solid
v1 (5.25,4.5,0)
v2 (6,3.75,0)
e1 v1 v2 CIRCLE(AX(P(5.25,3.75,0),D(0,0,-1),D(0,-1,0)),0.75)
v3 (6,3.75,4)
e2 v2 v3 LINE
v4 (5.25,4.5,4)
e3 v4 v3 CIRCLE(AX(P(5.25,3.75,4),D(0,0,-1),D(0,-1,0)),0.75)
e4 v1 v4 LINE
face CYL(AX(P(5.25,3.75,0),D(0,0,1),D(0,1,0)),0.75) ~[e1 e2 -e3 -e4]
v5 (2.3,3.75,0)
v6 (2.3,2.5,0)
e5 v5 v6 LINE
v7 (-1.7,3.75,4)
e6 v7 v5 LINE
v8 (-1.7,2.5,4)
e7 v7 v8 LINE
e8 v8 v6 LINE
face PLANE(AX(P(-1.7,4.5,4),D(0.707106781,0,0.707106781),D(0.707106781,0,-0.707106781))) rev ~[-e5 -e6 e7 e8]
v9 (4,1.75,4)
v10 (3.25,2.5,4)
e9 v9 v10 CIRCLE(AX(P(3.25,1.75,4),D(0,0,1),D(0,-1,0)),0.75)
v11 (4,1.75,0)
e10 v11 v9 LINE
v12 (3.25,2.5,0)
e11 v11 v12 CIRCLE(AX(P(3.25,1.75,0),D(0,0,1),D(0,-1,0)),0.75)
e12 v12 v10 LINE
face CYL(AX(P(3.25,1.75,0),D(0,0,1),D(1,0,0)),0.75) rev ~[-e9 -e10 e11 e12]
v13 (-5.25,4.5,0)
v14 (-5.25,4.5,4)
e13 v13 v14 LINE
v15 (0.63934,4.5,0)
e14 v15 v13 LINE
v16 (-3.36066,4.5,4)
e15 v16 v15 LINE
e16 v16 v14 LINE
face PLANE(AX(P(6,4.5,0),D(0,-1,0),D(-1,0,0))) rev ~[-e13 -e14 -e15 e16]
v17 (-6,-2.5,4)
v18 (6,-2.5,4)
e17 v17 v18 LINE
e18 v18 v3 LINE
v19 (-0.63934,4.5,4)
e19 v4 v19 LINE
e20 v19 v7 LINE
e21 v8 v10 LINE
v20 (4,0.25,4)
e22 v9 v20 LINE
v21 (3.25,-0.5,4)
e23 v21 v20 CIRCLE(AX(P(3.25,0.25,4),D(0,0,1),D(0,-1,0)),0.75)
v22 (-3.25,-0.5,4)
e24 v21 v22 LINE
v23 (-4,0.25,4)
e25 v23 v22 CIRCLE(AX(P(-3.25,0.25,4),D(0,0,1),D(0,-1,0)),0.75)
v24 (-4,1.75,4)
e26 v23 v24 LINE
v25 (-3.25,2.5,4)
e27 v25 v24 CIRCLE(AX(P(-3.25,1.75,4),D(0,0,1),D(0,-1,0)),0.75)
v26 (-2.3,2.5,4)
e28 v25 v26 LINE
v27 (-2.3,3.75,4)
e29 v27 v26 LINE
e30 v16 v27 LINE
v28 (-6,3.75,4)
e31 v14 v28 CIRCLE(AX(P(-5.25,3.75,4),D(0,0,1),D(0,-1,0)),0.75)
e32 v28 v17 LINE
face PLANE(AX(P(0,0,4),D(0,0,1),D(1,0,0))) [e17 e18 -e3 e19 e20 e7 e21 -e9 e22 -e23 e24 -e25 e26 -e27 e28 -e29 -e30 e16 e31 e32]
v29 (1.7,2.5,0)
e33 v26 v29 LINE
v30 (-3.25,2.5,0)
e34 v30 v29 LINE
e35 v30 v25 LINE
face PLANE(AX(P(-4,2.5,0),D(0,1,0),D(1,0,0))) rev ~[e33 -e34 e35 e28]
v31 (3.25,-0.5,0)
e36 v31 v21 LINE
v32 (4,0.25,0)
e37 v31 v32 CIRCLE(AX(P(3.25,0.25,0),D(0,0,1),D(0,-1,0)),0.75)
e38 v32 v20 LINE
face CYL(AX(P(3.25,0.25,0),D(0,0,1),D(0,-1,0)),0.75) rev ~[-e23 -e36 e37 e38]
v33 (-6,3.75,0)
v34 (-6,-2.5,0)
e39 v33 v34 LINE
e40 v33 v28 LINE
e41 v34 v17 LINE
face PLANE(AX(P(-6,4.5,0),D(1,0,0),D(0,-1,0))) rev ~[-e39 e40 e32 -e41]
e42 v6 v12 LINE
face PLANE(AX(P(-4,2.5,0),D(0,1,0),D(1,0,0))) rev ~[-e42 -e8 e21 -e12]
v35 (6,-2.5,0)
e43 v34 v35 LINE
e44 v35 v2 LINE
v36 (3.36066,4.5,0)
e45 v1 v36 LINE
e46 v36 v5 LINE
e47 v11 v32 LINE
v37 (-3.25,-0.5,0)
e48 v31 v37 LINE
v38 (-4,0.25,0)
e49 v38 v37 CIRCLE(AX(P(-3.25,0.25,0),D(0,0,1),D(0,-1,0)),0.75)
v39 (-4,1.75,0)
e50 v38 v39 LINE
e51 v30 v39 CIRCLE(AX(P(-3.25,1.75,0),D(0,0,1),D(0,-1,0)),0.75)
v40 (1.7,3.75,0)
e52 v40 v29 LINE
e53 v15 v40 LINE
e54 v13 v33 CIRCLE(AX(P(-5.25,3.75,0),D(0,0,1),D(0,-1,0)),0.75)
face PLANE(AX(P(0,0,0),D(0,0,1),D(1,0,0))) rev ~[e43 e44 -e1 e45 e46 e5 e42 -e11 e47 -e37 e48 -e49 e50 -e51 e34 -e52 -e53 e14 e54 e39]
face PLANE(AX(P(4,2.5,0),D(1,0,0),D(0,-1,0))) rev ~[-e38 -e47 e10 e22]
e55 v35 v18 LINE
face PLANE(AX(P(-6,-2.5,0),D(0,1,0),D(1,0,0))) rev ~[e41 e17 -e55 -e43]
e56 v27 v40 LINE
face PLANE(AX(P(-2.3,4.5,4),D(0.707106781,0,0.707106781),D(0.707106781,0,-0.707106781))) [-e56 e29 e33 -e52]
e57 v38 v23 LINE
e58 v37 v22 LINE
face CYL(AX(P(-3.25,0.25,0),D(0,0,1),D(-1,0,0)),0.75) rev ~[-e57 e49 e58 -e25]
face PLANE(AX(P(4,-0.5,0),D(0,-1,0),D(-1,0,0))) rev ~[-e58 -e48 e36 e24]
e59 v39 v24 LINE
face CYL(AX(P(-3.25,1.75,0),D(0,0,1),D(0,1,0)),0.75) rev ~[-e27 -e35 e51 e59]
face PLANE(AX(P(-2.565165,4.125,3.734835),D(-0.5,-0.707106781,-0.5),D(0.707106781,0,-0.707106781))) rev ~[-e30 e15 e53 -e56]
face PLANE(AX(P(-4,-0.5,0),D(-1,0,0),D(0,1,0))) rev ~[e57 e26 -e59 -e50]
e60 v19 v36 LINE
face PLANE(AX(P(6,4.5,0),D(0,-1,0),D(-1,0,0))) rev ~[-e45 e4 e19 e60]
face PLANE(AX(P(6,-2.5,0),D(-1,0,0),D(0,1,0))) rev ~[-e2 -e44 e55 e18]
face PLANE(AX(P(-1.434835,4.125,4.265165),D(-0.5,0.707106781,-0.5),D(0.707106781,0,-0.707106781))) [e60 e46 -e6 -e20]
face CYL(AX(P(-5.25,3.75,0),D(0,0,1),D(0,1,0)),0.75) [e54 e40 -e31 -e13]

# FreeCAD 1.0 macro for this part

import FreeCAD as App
import Part
import Sketcher
Q = App.Units.Quantity


def edges_at(feature, points):
    """Names of the edges that pass closest to the given points."""
    edges = feature.Shape.Edges
    near = lambda p: min(range(len(edges)), key=lambda i: edges[i].distToShape(Part.Vertex(*p))[0])
    return sorted({f"Edge{near(p) + 1}" for p in points})

doc = App.newDocument("Part")
params = doc.addObject("Spreadsheet::Sheet", "Params")
for row, (alias, value) in enumerate([
    ("sketch1_width", "8 mm"),
    ("sketch1_height", "3 mm"),
    ("pad1_length", "4 mm"),
    ("sketch2_width", "0.6 mm"),
    ("pocket1_length", "4 mm"),
    ("chamfer_size", "0.75 mm"),
    ("fillet_radius", "0.75 mm"),
    ("fillet2_radius", "0.75 mm"),
], start=1):
    params.set(f"A{row}", alias)
    params.set(f"B{row}", "=" + value)
    params.setAlias(f"B{row}", alias)

body = doc.addObject("PartDesign::Body", "Body")

# Sketch on XY plane
sketch1 = doc.addObject("Sketcher::SketchObject", "Sketch")
body.addObject(sketch1)
sketch1.AttachmentSupport = (doc.XY_Plane, [""])
sketch1.MapMode = "FlatFace"
sketch1.addGeometry([
    Part.LineSegment(App.Vector(6, -2.5, 0), App.Vector(6, 4.5, 0)),  # 0
    Part.LineSegment(App.Vector(6, 4.5, 0), App.Vector(-6, 4.5, 0)),  # 1
    Part.LineSegment(App.Vector(-6, 4.5, 0), App.Vector(-6, -2.5, 0)),  # 2
    Part.LineSegment(App.Vector(-6, -2.5, 0), App.Vector(6, -2.5, 0)),  # 3
    Part.LineSegment(App.Vector(-4, -0.5, 0), App.Vector(-4, 2.5, 0)),  # 4
    Part.LineSegment(App.Vector(-4, 2.5, 0), App.Vector(4, 2.5, 0)),  # 5
    Part.LineSegment(App.Vector(4, 2.5, 0), App.Vector(4, -0.5, 0)),  # 6
    Part.LineSegment(App.Vector(4, -0.5, 0), App.Vector(-4, -0.5, 0)),  # 7
], False)
sketch1.addConstraint([
    Sketcher.Constraint("Coincident", 0, 2, 1, 1),
    Sketcher.Constraint("Coincident", 1, 2, 2, 1),
    Sketcher.Constraint("Coincident", 2, 2, 3, 1),
    Sketcher.Constraint("Coincident", 3, 2, 0, 1),
    Sketcher.Constraint("Coincident", 4, 2, 5, 1),
    Sketcher.Constraint("Coincident", 5, 2, 6, 1),
    Sketcher.Constraint("Coincident", 6, 2, 7, 1),
    Sketcher.Constraint("Coincident", 7, 2, 4, 1),
    Sketcher.Constraint("Vertical", 0),
    Sketcher.Constraint("Horizontal", 1),
    Sketcher.Constraint("Vertical", 2),
    Sketcher.Constraint("Horizontal", 3),
    Sketcher.Constraint("Vertical", 4),
    Sketcher.Constraint("Horizontal", 5),
    Sketcher.Constraint("Vertical", 6),
    Sketcher.Constraint("Horizontal", 7),
    Sketcher.Constraint("DistanceX", 5, 1, 5, 2, 8.0),
    Sketcher.Constraint("DistanceY", 4, 1, 4, 2, 3.0),
    Sketcher.Constraint("DistanceX", 1, 2, 4, 2, 2.0),
    Sketcher.Constraint("DistanceY", 4, 2, 1, 2, 2.0),
    Sketcher.Constraint("DistanceX", 5, 2, 0, 2, 2.0),
    Sketcher.Constraint("DistanceY", 3, 2, 6, 2, 2.0),
    Sketcher.Constraint("DistanceY", 2, 2, -1, 1, 2.5),
    Sketcher.Constraint("DistanceX", -1, 1, 0, 2, 6.0),
])
sketch1.setExpression("Constraints[16]", "Params.sketch1_width")
sketch1.setExpression("Constraints[17]", "Params.sketch1_height")
pad1 = doc.addObject("PartDesign::Pad", "Pad")
body.addObject(pad1)
pad1.Profile = sketch1
pad1.setExpression("Length", "Params.pad1_length")

# Sketch on XZ plane
sketch2 = doc.addObject("Sketcher::SketchObject", "Sketch001")
body.addObject(sketch2)
sketch2.AttachmentSupport = (doc.XZ_Plane, [""])
sketch2.MapMode = "FlatFace"
sketch2.AttachmentOffset = App.Placement(App.Vector(0, 0, -4.5), App.Rotation())
sketch2.addGeometry([
    Part.LineSegment(App.Vector(2.3, 0, 0), App.Vector(1.7, 0, 0)),
    Part.LineSegment(App.Vector(1.7, 0, 0), App.Vector(-2.3, 4, 0)),
    Part.LineSegment(App.Vector(-2.3, 4, 0), App.Vector(-1.7, 4, 0)),
    Part.LineSegment(App.Vector(-1.7, 4, 0), App.Vector(2.3, 0, 0)),
], False)
sketch2.addConstraint([
    Sketcher.Constraint("Coincident", 0, 2, 1, 1),
    Sketcher.Constraint("Coincident", 1, 2, 2, 1),
    Sketcher.Constraint("Coincident", 2, 2, 3, 1),
    Sketcher.Constraint("Coincident", 3, 2, 0, 1),
    Sketcher.Constraint("Horizontal", 0),
    Sketcher.Constraint("Horizontal", 2),
    Sketcher.Constraint("PointOnObject", 0, 2, -1),
    Sketcher.Constraint("Parallel", 1, 3),
    Sketcher.Constraint("Angle", 1, Q("135 deg")),
    Sketcher.Constraint("DistanceX", 0, 2, 0, 1, 0.6),
    Sketcher.Constraint("DistanceY", -1, 1, 1, 2, 4.0),
    Sketcher.Constraint("DistanceX", -1, 1, 0, 2, 1.7),
])
sketch2.setExpression("Constraints[9]", "Params.sketch2_width")
pocket1 = doc.addObject("PartDesign::Pocket", "Pocket")
body.addObject(pocket1)
pocket1.Profile = sketch2
pocket1.setExpression("Length", "Params.pocket1_length")
pocket1.Reversed = True
doc.recompute()

chamfer = doc.addObject("PartDesign::Chamfer", "Chamfer")
body.addObject(chamfer)
chamfer.Base = (pocket1, edges_at(pocket1, [(0.3, 4.5, 2), (-0.3, 4.5, 2)]))
chamfer.setExpression("Size", "Params.chamfer_size")
doc.recompute()

fillet = doc.addObject("PartDesign::Fillet", "Fillet")
body.addObject(fillet)
fillet.Base = (chamfer, edges_at(chamfer, [
    (-4, -0.5, 2),
    (-4, 2.5, 2),
    (4, 2.5, 2),
    (4, -0.5, 2),
]))
fillet.setExpression("Radius", "Params.fillet_radius")
doc.recompute()

fillet2 = doc.addObject("PartDesign::Fillet", "Fillet001")
body.addObject(fillet2)
fillet2.Base = (fillet, edges_at(fillet, [(-6, 4.5, 2), (6, 4.5, 2)]))
fillet2.setExpression("Radius", "Params.fillet2_radius")

doc.recompute()
